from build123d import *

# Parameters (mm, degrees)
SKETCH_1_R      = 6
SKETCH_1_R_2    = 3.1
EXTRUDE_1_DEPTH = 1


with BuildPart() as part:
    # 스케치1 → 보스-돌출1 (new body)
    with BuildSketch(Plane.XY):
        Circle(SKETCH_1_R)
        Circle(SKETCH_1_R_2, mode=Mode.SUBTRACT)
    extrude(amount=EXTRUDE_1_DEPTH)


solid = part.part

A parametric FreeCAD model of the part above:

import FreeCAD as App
import Part
import Sketcher

V = App.Vector

doc = App.newDocument("Part")
params = doc.addObject("Spreadsheet::Sheet", "Params")
for row, (alias, value) in enumerate([
    ("sketch1_diameter", "12 mm"),
    ("sketch1_diameter2", "6.2 mm"),
    ("pad1_length", "1 mm"),
], start=1):
    params.set(f"A{row}", alias)
    params.set(f"B{row}", "=" + value)
    params.setAlias(f"B{row}", alias)

body = doc.addObject("PartDesign::Body", "Body")

# Sketch on XY plane
sketch1 = doc.addObject("Sketcher::SketchObject", "Sketch")
body.addObject(sketch1)
sketch1.AttachmentSupport = (doc.XY_Plane, [""])
sketch1.MapMode = "FlatFace"
sketch1.addGeometry([
    Part.Circle(V(0, 0, 0), V(0, 0, 1), 6),
    Part.Circle(V(0, 0, 0), V(0, 0, 1), 3.1),
], False)
sketch1.addConstraint([
    Sketcher.Constraint("Coincident", 0, 3, -1, 1),
    Sketcher.Constraint("Coincident", 1, 3, -1, 1),
    Sketcher.Constraint("Diameter", 0, 12.0),
    Sketcher.Constraint("Diameter", 1, 6.2),
])
sketch1.setExpression("Constraints[2]", "Params.sketch1_diameter")
sketch1.setExpression("Constraints[3]", "Params.sketch1_diameter2")
pad1 = doc.addObject("PartDesign::Pad", "Pad")
body.addObject(pad1)
pad1.Profile = sketch1
pad1.setExpression("Length", "Params.pad1_length")

doc.recompute()
